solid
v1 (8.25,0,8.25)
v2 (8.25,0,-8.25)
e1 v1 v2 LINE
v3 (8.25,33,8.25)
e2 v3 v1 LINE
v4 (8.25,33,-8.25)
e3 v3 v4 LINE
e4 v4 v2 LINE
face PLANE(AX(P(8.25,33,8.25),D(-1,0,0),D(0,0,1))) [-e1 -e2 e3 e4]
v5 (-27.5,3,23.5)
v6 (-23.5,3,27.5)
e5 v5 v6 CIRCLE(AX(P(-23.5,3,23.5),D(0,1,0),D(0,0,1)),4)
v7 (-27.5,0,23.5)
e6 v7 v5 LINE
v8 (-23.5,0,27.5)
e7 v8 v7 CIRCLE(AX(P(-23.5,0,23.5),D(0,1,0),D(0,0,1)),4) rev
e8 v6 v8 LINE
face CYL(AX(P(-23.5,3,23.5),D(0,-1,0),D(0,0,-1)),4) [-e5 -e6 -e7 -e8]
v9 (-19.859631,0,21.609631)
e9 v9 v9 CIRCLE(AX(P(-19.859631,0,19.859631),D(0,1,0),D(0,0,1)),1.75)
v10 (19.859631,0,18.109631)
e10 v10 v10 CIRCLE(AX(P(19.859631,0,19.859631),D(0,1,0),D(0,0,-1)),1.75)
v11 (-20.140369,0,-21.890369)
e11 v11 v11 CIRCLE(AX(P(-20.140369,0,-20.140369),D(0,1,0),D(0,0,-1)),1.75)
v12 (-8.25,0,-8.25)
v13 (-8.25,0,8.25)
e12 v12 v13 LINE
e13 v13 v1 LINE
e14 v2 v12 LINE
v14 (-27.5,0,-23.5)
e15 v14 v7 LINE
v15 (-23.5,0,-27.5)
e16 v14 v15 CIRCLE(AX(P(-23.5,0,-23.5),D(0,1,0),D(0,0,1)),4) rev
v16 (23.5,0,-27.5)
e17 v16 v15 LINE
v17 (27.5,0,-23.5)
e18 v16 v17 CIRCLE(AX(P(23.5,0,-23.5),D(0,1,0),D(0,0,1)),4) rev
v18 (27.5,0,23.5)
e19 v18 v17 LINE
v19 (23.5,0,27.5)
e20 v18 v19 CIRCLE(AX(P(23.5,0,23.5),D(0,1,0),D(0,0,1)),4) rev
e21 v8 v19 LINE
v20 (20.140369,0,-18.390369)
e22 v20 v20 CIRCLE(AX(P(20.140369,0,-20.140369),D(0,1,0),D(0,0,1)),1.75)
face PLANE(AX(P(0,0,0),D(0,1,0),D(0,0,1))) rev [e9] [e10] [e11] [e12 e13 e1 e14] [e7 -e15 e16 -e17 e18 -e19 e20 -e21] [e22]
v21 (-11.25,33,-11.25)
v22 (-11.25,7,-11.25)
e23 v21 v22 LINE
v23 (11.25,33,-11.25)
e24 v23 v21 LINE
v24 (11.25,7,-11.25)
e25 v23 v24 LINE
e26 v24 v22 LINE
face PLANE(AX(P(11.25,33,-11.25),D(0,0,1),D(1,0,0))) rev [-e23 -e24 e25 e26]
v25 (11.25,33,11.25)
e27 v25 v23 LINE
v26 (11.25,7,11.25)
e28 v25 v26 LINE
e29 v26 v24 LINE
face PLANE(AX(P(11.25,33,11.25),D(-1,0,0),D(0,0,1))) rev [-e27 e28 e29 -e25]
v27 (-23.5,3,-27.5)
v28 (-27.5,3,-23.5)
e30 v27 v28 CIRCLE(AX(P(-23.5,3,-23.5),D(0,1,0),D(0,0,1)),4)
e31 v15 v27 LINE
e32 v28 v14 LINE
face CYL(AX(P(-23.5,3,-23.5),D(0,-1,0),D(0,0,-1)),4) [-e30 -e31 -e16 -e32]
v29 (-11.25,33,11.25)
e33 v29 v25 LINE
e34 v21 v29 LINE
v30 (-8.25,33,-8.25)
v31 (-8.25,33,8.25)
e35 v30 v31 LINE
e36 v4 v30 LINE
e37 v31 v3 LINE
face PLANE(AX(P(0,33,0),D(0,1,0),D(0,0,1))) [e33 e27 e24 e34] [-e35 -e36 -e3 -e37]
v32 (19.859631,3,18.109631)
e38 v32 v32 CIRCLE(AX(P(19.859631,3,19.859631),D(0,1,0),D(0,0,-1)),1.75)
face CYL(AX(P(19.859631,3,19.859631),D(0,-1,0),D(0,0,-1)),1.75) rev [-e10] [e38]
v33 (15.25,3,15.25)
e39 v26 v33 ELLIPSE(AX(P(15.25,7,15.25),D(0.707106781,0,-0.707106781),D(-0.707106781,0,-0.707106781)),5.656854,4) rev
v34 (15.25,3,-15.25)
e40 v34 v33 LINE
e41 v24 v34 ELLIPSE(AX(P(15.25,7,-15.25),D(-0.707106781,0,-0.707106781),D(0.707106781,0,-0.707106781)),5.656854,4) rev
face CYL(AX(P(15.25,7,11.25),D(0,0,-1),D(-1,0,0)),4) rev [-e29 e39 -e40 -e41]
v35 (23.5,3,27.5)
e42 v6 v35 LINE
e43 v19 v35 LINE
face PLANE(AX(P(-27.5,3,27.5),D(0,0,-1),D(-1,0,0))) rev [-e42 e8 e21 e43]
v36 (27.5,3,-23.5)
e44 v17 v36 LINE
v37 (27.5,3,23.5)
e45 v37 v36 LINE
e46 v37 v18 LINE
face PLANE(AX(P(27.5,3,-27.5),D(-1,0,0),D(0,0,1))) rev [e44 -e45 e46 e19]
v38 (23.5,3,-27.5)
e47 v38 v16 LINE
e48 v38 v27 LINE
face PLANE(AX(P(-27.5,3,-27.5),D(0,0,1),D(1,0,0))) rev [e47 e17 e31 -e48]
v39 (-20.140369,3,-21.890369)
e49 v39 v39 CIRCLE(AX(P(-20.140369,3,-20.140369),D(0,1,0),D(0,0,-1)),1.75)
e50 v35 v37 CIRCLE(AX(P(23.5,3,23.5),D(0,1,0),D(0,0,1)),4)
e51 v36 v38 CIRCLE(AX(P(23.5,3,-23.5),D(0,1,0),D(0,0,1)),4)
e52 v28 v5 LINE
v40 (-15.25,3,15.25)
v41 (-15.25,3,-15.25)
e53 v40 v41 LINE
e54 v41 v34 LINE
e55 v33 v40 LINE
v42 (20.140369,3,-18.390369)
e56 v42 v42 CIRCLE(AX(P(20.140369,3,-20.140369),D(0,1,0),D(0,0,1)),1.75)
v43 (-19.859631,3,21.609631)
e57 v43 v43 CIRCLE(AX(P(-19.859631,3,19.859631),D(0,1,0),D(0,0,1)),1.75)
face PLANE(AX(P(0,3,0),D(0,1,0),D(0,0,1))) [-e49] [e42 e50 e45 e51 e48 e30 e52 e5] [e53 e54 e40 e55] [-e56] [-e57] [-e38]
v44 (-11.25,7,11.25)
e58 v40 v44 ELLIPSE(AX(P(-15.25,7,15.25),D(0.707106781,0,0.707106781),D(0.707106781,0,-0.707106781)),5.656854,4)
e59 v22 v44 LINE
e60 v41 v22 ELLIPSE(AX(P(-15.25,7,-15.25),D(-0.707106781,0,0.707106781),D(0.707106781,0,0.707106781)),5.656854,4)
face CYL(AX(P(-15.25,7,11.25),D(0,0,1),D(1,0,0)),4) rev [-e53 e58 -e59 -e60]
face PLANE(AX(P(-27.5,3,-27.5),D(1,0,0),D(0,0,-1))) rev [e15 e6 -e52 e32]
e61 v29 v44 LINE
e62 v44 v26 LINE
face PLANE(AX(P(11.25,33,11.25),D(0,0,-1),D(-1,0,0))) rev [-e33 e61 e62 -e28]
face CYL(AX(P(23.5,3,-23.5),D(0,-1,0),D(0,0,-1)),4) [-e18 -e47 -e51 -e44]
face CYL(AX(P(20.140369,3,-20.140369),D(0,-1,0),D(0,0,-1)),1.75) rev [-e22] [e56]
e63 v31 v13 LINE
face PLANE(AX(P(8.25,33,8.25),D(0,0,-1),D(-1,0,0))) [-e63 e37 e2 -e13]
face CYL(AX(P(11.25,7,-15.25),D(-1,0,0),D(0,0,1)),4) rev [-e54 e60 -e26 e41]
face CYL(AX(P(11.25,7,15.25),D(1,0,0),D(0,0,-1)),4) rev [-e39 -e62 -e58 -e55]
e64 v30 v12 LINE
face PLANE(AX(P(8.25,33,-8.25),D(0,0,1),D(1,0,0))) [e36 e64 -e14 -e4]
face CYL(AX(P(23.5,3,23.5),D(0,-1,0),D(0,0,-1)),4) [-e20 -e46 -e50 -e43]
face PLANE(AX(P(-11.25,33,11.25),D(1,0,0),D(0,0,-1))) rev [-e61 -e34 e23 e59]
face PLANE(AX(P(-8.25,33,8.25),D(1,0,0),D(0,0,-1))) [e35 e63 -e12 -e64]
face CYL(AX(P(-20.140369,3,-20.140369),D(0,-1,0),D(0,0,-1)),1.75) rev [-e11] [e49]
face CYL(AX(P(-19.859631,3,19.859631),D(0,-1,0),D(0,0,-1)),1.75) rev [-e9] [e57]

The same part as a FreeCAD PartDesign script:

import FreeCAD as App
import Part
import Sketcher
from FreeCAD import Vector


def edges_at(feature, points):
    """Names of the edges that pass closest to the given points."""
    edges = feature.Shape.Edges
    near = lambda p: min(range(len(edges)), key=lambda i: edges[i].distToShape(Part.Vertex(*p))[0])
    return sorted({f"Edge{near(p) + 1}" for p in points})

doc = App.newDocument("Part")
body = doc.addObject("PartDesign::Body", "Body")

# Sketch on XZ plane
sketch1 = body.newObject("Sketcher::SketchObject", "Sketch")
sketch1.AttachmentSupport = (doc.getObject("XZ_Plane"), [""])
sketch1.MapMode = "FlatFace"
sketch1.addGeometry([
    Part.LineSegment(Vector(-27.5, -27.5, 0), Vector(-27.5, 27.5, 0)),  # 0
    Part.LineSegment(Vector(-27.5, 27.5, 0), Vector(27.5, 27.5, 0)),  # 1
    Part.LineSegment(Vector(27.5, 27.5, 0), Vector(27.5, -27.5, 0)),  # 2
    Part.LineSegment(Vector(27.5, -27.5, 0), Vector(-27.5, -27.5, 0)),  # 3
    Part.Circle(Vector(-19.9, 19.9, 0), Vector(0, 0, 1), 1.8),  # 4
    Part.Circle(Vector(19.9, 19.9, 0), Vector(0, 0, 1), 1.8),  # 5
    Part.Circle(Vector(-20.1, -20.1, 0), Vector(0, 0, 1), 1.8),  # 6
    Part.Circle(Vector(20.1, -20.1, 0), Vector(0, 0, 1), 1.8),  # 7
], False)
sketch1.addConstraint([
    Sketcher.Constraint("Coincident", 0, 2, 1, 1),
    Sketcher.Constraint("Coincident", 1, 2, 2, 1),
    Sketcher.Constraint("Coincident", 2, 2, 3, 1),
    Sketcher.Constraint("Coincident", 3, 2, 0, 1),
    Sketcher.Constraint("Vertical", 0),
    Sketcher.Constraint("Horizontal", 1),
    Sketcher.Constraint("Vertical", 2),
    Sketcher.Constraint("Horizontal", 3),
    Sketcher.Constraint("Equal", 4, 5),
    Sketcher.Constraint("Equal", 5, 6),
    Sketcher.Constraint("Equal", 6, 7),
    Sketcher.Constraint("Symmetric", 0, 2, 2, 2, -1, 1),
    Sketcher.Constraint("Symmetric", 4, 3, 5, 3, -2),
    Sketcher.Constraint("Symmetric", 6, 3, 7, 3, -2),
    Sketcher.Constraint("Equal", 3, 0),
    Sketcher.Constraint("Diameter", 4, 3.5),
    Sketcher.Constraint("DistanceX", 1, 1, 1, 2, 55.0),
    Sketcher.Constraint("DistanceY", 6, 3, 4, 3, 40.0),
    Sketcher.Constraint("DistanceX", 6, 3, 5, 3, 40.0),
    Sketcher.Constraint("DistanceX", 4, 3, -1, 1, 19.859631),
    Sketcher.Constraint("DistanceY", -1, 1, 4, 3, 19.859631),
])
pad1 = body.newObject("PartDesign::Pad", "Pad")
pad1.Profile = sketch1
pad1.Length = 3
pad1.Reversed = True

# Sketch on XZ plane
sketch2 = body.newObject("Sketcher::SketchObject", "Sketch001")
sketch2.AttachmentSupport = (doc.getObject("XZ_Plane"), [""])
sketch2.MapMode = "FlatFace"
sketch2.AttachmentOffset = App.Placement(Vector(0, 0, -3), App.Rotation())
sketch2.addGeometry([
    Part.LineSegment(Vector(-11, -11, 0), Vector(-11, 11, 0)),  # 0
    Part.LineSegment(Vector(-11, 11, 0), Vector(11, 11, 0)),  # 1
    Part.LineSegment(Vector(11, 11, 0), Vector(11, -11, 0)),  # 2
    Part.LineSegment(Vector(11, -11, 0), Vector(-11, -11, 0)),  # 3
    Part.LineSegment(Vector(8, 8, 0), Vector(-8, 8, 0)),  # 4
    Part.LineSegment(Vector(-8, 8, 0), Vector(-8, -8, 0)),  # 5
    Part.LineSegment(Vector(-8, -8, 0), Vector(8, -8, 0)),  # 6
    Part.LineSegment(Vector(8, -8, 0), Vector(8, 8, 0)),  # 7
], False)
sketch2.addConstraint([
    Sketcher.Constraint("Coincident", 0, 2, 1, 1),
    Sketcher.Constraint("Coincident", 1, 2, 2, 1),
    Sketcher.Constraint("Coincident", 2, 2, 3, 1),
    Sketcher.Constraint("Coincident", 3, 2, 0, 1),
    Sketcher.Constraint("Coincident", 4, 2, 5, 1),
    Sketcher.Constraint("Coincident", 5, 2, 6, 1),
    Sketcher.Constraint("Coincident", 6, 2, 7, 1),
    Sketcher.Constraint("Coincident", 7, 2, 4, 1),
    Sketcher.Constraint("Vertical", 0),
    Sketcher.Constraint("Horizontal", 1),
    Sketcher.Constraint("Vertical", 2),
    Sketcher.Constraint("Horizontal", 3),
    Sketcher.Constraint("Horizontal", 4),
    Sketcher.Constraint("Vertical", 5),
    Sketcher.Constraint("Horizontal", 6),
    Sketcher.Constraint("Vertical", 7),
    Sketcher.Constraint("Symmetric", 0, 2, 2, 2, -1, 1),
    Sketcher.Constraint("Symmetric", 4, 2, 6, 2, -1, 1),
    Sketcher.Constraint("Equal", 3, 0),
    Sketcher.Constraint("Equal", 6, 5),
    Sketcher.Constraint("DistanceX", 1, 1, 1, 2, 22.5),
    Sketcher.Constraint("DistanceX", 4, 2, 4, 1, 16.5),
])
pad2 = body.newObject("PartDesign::Pad", "Pad001")
pad2.Profile = sketch2
pad2.Length = 30
pad2.Reversed = True

# Sketch on XZ plane
sketch3 = body.newObject("Sketcher::SketchObject", "Sketch002")
sketch3.AttachmentSupport = (doc.getObject("XZ_Plane"), [""])
sketch3.MapMode = "FlatFace"
sketch3.AttachmentOffset = App.Placement(Vector(0, 0, -3), App.Rotation())
sketch3.addGeometry([
    Part.LineSegment(Vector(-8, -8, 0), Vector(-8, 8, 0)),
    Part.LineSegment(Vector(-8, 8, 0), Vector(8, 8, 0)),
    Part.LineSegment(Vector(8, 8, 0), Vector(8, -8, 0)),
    Part.LineSegment(Vector(8, -8, 0), Vector(-8, -8, 0)),
], False)
sketch3.addConstraint([
    Sketcher.Constraint("Coincident", 0, 2, 1, 1),
    Sketcher.Constraint("Coincident", 1, 2, 2, 1),
    Sketcher.Constraint("Coincident", 2, 2, 3, 1),
    Sketcher.Constraint("Coincident", 3, 2, 0, 1),
    Sketcher.Constraint("Vertical", 0),
    Sketcher.Constraint("Horizontal", 1),
    Sketcher.Constraint("Vertical", 2),
    Sketcher.Constraint("Horizontal", 3),
    Sketcher.Constraint("Symmetric", 0, 2, 2, 2, -1, 1),
    Sketcher.Constraint("Equal", 3, 0),
    Sketcher.Constraint("DistanceX", 1, 1, 1, 2, 16.5),
])
pocket1 = body.newObject("PartDesign::Pocket", "Pocket")
pocket1.Profile = sketch3
pocket1.Length = 30
pocket1.Reversed = True
doc.recompute()

fillet = body.newObject("PartDesign::Fillet", "Fillet")
fillet.Base = (pocket1, edges_at(pocket1, [
    (-11.25, 3, 0),
    (0, 3, 11.25),
    (11.25, 3, 0),
    (0, 3, -11.25),
]))
fillet.Radius = 4
doc.recompute()

fillet2 = body.newObject("PartDesign::Fillet", "Fillet001")
fillet2.Base = (fillet, edges_at(fillet, [
    (27.5, 1.5, 27.5),
    (-27.5, 1.5, 27.5),
    (-27.5, 1.5, -27.5),
    (27.5, 1.5, -27.5),
]))
fillet2.Radius = 4

doc.recompute()
